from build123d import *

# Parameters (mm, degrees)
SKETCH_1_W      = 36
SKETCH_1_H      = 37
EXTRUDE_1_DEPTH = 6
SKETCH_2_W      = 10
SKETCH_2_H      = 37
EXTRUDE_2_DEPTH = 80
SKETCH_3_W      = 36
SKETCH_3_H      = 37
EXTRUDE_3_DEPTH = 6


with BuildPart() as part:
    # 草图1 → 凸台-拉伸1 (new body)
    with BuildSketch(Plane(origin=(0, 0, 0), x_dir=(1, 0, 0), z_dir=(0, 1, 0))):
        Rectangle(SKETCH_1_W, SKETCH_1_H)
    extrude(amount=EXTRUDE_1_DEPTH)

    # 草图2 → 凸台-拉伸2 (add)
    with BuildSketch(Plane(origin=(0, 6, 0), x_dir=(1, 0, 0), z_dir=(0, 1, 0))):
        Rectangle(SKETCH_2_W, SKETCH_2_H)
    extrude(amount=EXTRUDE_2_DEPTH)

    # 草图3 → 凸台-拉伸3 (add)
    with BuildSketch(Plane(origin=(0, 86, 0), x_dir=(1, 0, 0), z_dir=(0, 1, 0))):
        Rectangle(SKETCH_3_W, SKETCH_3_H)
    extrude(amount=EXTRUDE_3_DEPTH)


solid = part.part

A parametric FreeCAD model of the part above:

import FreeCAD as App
import Part
import Sketcher

V = App.Vector

doc = App.newDocument("Part")
body = doc.addObject("PartDesign::Body", "Body")

# Sketch on XZ plane
sketch1 = body.newObject("Sketcher::SketchObject", "Sketch")
sketch1.AttachmentSupport = (doc.getObject("XZ_Plane"), [""])
sketch1.MapMode = "FlatFace"
sketch1.addGeometry([
    Part.LineSegment(V(-18, -18, 0), V(-18, 18, 0)),
    Part.LineSegment(V(-18, 18, 0), V(18, 18, 0)),
    Part.LineSegment(V(18, 18, 0), V(18, -18, 0)),
    Part.LineSegment(V(18, -18, 0), V(-18, -18, 0)),
], False)
sketch1.addConstraint([
    Sketcher.Constraint("Coincident", 0, 2, 1, 1),
    Sketcher.Constraint("Coincident", 1, 2, 2, 1),
    Sketcher.Constraint("Coincident", 2, 2, 3, 1),
    Sketcher.Constraint("Coincident", 3, 2, 0, 1),
    Sketcher.Constraint("Vertical", 0),
    Sketcher.Constraint("Horizontal", 1),
    Sketcher.Constraint("Vertical", 2),
    Sketcher.Constraint("Horizontal", 3),
    Sketcher.Constraint("Symmetric", 0, 2, 2, 2, -1, 1),
    Sketcher.Constraint("DistanceX", 1, 1, 1, 2, 36.0),
    Sketcher.Constraint("DistanceY", 0, 1, 0, 2, 37.0),
])
pad1 = body.newObject("PartDesign::Pad", "Pad")
pad1.Profile = sketch1
pad1.Length = 6
pad1.Reversed = True

# Sketch on XZ plane
sketch2 = body.newObject("Sketcher::SketchObject", "Sketch001")
sketch2.AttachmentSupport = (doc.getObject("XZ_Plane"), [""])
sketch2.MapMode = "FlatFace"
sketch2.AttachmentOffset = App.Placement(V(0, 0, -6), App.Rotation())
sketch2.addGeometry([
    Part.LineSegment(V(-5, -18, 0), V(-5, 18, 0)),
    Part.LineSegment(V(-5, 18, 0), V(5, 18, 0)),
    Part.LineSegment(V(5, 18, 0), V(5, -18, 0)),
    Part.LineSegment(V(5, -18, 0), V(-5, -18, 0)),
], False)
sketch2.addConstraint([
    Sketcher.Constraint("Coincident", 0, 2, 1, 1),
    Sketcher.Constraint("Coincident", 1, 2, 2, 1),
    Sketcher.Constraint("Coincident", 2, 2, 3, 1),
    Sketcher.Constraint("Coincident", 3, 2, 0, 1),
    Sketcher.Constraint("Vertical", 0),
    Sketcher.Constraint("Horizontal", 1),
    Sketcher.Constraint("Vertical", 2),
    Sketcher.Constraint("Horizontal", 3),
    Sketcher.Constraint("Symmetric", 0, 2, 2, 2, -1, 1),
    Sketcher.Constraint("DistanceX", 1, 1, 1, 2, 10.0),
    Sketcher.Constraint("DistanceY", 0, 1, 0, 2, 37.0),
])
pad2 = body.newObject("PartDesign::Pad", "Pad001")
pad2.Profile = sketch2
pad2.Length = 80
pad2.Reversed = True

# Sketch on XZ plane
sketch3 = body.newObject("Sketcher::SketchObject", "Sketch002")
sketch3.AttachmentSupport = (doc.getObject("XZ_Plane"), [""])
sketch3.MapMode = "FlatFace"
sketch3.AttachmentOffset = App.Placement(V(0, 0, -86), App.Rotation())
sketch3.addGeometry([
    Part.LineSegment(V(-18, -18, 0), V(-18, 18, 0)),
    Part.LineSegment(V(-18, 18, 0), V(18, 18, 0)),
    Part.LineSegment(V(18, 18, 0), V(18, -18, 0)),
    Part.LineSegment(V(18, -18, 0), V(-18, -18, 0)),
], False)
sketch3.addConstraint([
    Sketcher.Constraint("Coincident", 0, 2, 1, 1),
    Sketcher.Constraint("Coincident", 1, 2, 2, 1),
    Sketcher.Constraint("Coincident", 2, 2, 3, 1),
    Sketcher.Constraint("Coincident", 3, 2, 0, 1),
    Sketcher.Constraint("Vertical", 0),
    Sketcher.Constraint("Horizontal", 1),
    Sketcher.Constraint("Vertical", 2),
    Sketcher.Constraint("Horizontal", 3),
    Sketcher.Constraint("Symmetric", 0, 2, 2, 2, -1, 1),
    Sketcher.Constraint("DistanceX", 1, 1, 1, 2, 36.0),
    Sketcher.Constraint("DistanceY", 0, 1, 0, 2, 37.0),
])
pad3 = body.newObject("PartDesign::Pad", "Pad002")
pad3.Profile = sketch3
pad3.Length = 6
pad3.Reversed = True

doc.recompute()
